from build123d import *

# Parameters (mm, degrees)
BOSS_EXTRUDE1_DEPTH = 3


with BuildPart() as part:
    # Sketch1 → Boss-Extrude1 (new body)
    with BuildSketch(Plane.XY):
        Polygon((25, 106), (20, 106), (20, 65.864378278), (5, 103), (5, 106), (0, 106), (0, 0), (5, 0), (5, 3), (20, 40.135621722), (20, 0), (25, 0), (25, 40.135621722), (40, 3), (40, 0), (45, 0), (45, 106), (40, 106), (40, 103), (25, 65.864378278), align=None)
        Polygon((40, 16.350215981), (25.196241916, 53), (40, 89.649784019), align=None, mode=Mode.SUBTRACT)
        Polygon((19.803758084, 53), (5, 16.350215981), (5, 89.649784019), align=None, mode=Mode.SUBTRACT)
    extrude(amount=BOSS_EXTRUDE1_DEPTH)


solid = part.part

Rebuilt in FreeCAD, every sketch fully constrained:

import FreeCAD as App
import Part
import Sketcher


def add_polygon(sketch, points):
    """Adds a closed chain of lines whose ends are joined by coincident constraints."""
    first, n = sketch.GeometryCount, len(points)
    for a, b in zip(points, points[1:] + points[:1]):
        sketch.addGeometry(Part.LineSegment(App.Vector(*a, 0), App.Vector(*b, 0)), False)
    for i in range(n):
        sketch.addConstraint(Sketcher.Constraint("Coincident", first + i, 2, first + (i + 1) % n, 1))

doc = App.newDocument("Part")
body = doc.addObject("PartDesign::Body", "Body")

sketch1 = body.newObject("Sketcher::SketchObject", "Sketch")
sketch1.AttachmentSupport = (doc.getObject("XY_Plane"), [""])
sketch1.MapMode = "FlatFace"
add_polygon(sketch1, [(25, 106), (20, 106), (20, 65.864378), (5, 103), (5, 106), (0, 106), (0, 0), (5, 0), (5, 3), (20, 40.135622), (20, 0), (25, 0), (25, 40.135622), (40, 3), (40, 0), (45, 0), (45, 106), (40, 106), (40, 103), (25, 65.864378)])
add_polygon(sketch1, [(5, 89.649784), (19.803758, 53), (5, 16.350216)])
add_polygon(sketch1, [(40, 89.649784), (40, 16.350216), (25.196242, 53)])
sketch1.addConstraint([
    Sketcher.Constraint("Horizontal", 0),
    Sketcher.Constraint("Vertical", 1),
    Sketcher.Constraint("Vertical", 3),
    Sketcher.Constraint("Horizontal", 4),
    Sketcher.Constraint("Vertical", 5),
    Sketcher.Constraint("Horizontal", 6),
    Sketcher.Constraint("Vertical", 7),
    Sketcher.Constraint("Vertical", 9),
    Sketcher.Constraint("Horizontal", 10),
    Sketcher.Constraint("Vertical", 11),
    Sketcher.Constraint("Vertical", 13),
    Sketcher.Constraint("Horizontal", 14),
    Sketcher.Constraint("Vertical", 15),
    Sketcher.Constraint("Horizontal", 16),
    Sketcher.Constraint("Vertical", 17),
    Sketcher.Constraint("Vertical", 19),
    Sketcher.Constraint("Vertical", 22),
    Sketcher.Constraint("Vertical", 23),
    Sketcher.Constraint("Coincident", 5, 2, -1, 1),
    Sketcher.Constraint("PointOnObject", 9, 2, -1),
    Sketcher.Constraint("PointOnObject", 13, 2, -1),
    Sketcher.Constraint("Parallel", 2, 12),
    Sketcher.Constraint("Parallel", 8, 18),
    Sketcher.Constraint("Parallel", 12, 20),
    Sketcher.Constraint("Parallel", 18, 21),
    Sketcher.Constraint("Parallel", 20, 24),
    Sketcher.Constraint("Parallel", 21, 25),
    Sketcher.Constraint("Horizontal", 0, 2, 3, 2),
    Sketcher.Constraint("Horizontal", 8, 2, 11, 2),
    Sketcher.Constraint("Horizontal", 7, 2, 12, 2),
    Sketcher.Constraint("Horizontal", 4, 2, 15, 2),
    Sketcher.Constraint("Horizontal", 2, 2, 17, 2),
    Sketcher.Constraint("Horizontal", 1, 2, 18, 2),
    Sketcher.Constraint("Horizontal", 21, 2, 23, 2),
    Sketcher.Constraint("Horizontal", 20, 2, 24, 2),
    Sketcher.Constraint("Horizontal", 22, 2, 25, 2),
    Sketcher.Constraint("Vertical", 3, 2, 6, 2),
    Sketcher.Constraint("Vertical", 1, 2, 8, 2),
    Sketcher.Constraint("Vertical", 13, 2, 16, 2),
    Sketcher.Constraint("Vertical", 7, 2, 21, 2),
    Sketcher.Constraint("Vertical", 17, 2, 23, 2),
    Sketcher.Constraint("Equal", 0, 4),
    Sketcher.Constraint("Equal", 10, 14),
    Sketcher.Constraint("Equal", 3, 7),
    Sketcher.Constraint("DistanceX", 0, 2, 0, 1, 5.0),
    Sketcher.Constraint("DistanceY", 3, 1, 3, 2, 3.0),
    Sketcher.Constraint("DistanceY", 5, 2, 5, 1, 106.0),
    Sketcher.Constraint("DistanceX", -1, 1, 0, 2, 20.0),
    Sketcher.Constraint("DistanceY", -1, 1, 20, 2, 53.0),
    Sketcher.Constraint("DistanceY", 1, 2, 1, 1, 40.135622),
    Sketcher.Constraint("DistanceY", 22, 1, 22, 2, 73.299568),
])
pad1 = body.newObject("PartDesign::Pad", "Pad")
pad1.Profile = sketch1
pad1.Length = 3

doc.recompute()
